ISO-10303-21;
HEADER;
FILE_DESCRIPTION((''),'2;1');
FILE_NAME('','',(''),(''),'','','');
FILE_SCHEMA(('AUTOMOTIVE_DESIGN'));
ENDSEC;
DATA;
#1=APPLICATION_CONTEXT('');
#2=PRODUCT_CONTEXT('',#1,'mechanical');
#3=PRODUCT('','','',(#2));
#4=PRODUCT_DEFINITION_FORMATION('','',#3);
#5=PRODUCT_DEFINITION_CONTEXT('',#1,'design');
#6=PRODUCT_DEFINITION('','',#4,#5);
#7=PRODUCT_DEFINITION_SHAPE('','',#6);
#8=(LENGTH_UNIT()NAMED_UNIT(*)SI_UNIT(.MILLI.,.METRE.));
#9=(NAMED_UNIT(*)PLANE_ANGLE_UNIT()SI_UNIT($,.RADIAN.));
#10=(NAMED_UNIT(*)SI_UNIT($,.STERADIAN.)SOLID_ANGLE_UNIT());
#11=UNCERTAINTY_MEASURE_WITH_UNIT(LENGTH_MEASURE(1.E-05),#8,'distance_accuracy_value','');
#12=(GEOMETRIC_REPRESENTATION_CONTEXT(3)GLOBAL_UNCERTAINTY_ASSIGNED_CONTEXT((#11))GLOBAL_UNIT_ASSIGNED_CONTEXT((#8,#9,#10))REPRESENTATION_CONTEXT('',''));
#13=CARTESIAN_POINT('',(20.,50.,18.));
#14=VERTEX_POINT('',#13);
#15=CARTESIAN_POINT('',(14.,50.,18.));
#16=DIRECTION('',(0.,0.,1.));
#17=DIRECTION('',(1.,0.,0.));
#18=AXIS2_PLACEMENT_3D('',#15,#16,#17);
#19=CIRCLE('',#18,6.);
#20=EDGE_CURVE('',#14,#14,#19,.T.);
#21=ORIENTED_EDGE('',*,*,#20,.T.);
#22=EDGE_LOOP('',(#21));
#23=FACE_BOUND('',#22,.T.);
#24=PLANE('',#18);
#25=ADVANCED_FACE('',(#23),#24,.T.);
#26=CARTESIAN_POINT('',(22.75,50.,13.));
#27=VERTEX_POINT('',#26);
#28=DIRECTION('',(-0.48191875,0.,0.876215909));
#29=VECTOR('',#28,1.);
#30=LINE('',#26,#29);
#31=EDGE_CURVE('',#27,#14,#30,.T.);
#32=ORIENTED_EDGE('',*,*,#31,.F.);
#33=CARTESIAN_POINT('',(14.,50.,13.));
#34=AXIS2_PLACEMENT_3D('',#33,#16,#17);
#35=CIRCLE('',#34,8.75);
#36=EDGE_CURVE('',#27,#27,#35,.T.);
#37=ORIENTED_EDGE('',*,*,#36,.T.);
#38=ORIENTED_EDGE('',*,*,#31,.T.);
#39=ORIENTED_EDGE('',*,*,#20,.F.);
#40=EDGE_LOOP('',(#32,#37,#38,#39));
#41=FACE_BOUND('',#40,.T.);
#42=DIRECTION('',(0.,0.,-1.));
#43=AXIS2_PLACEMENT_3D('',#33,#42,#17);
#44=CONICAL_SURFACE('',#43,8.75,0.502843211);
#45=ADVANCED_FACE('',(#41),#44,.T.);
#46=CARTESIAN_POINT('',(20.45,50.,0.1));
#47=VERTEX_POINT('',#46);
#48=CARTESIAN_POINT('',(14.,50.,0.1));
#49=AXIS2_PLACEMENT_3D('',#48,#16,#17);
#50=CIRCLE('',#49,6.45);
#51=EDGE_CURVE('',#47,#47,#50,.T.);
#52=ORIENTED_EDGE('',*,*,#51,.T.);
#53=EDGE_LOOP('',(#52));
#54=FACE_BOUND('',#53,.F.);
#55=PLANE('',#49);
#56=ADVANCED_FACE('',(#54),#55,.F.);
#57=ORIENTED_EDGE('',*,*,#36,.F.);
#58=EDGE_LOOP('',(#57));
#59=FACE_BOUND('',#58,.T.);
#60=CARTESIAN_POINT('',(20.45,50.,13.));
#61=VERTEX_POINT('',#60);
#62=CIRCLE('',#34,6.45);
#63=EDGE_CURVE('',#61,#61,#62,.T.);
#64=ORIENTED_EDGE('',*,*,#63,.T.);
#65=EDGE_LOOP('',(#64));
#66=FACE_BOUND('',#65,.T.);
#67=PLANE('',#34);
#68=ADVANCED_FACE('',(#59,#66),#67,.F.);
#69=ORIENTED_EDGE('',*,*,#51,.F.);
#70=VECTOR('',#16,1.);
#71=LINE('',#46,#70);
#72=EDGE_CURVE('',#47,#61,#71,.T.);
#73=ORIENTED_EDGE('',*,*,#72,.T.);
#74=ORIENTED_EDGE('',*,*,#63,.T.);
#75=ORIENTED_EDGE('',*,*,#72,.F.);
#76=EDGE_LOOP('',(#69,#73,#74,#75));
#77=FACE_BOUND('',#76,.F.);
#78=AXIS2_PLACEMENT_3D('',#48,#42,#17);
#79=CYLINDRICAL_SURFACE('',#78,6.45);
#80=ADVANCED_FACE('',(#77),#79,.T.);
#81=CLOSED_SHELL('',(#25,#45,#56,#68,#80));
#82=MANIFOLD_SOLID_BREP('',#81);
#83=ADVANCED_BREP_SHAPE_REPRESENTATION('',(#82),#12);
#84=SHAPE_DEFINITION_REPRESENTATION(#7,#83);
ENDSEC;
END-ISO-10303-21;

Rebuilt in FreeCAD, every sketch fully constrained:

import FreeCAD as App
import Part
import Sketcher


def add_polygon(sketch, points):
    """Adds a closed chain of lines whose ends are joined by coincident constraints."""
    first, n = sketch.GeometryCount, len(points)
    for a, b in zip(points, points[1:] + points[:1]):
        sketch.addGeometry(Part.LineSegment(App.Vector(*a, 0), App.Vector(*b, 0)), False)
    for i in range(n):
        sketch.addConstraint(Sketcher.Constraint("Coincident", first + i, 2, first + (i + 1) % n, 1))

doc = App.newDocument("Part")
body = doc.addObject("PartDesign::Body", "Body")

# Sketch on XZ plane
sketch1 = body.newObject("Sketcher::SketchObject", "Sketch")
sketch1.AttachmentSupport = (doc.getObject("XZ_Plane"), [""])
sketch1.MapMode = "FlatFace"
add_polygon(sketch1, [(0, 0), (9, 0), (6, 5), (0, 5)])  # lines 0-3
sketch1.addConstraint(Sketcher.Constraint("Horizontal", 0))
sketch1.addConstraint(Sketcher.Constraint("Horizontal", 2))
sketch1.addConstraint(Sketcher.Constraint("Vertical", 3))
sketch1.addConstraint(Sketcher.Constraint("Coincident", 3, 2, -1, 1))
sketch1.addConstraint(Sketcher.Constraint("DistanceX", 2, 2, 2, 1, 6.0))
sketch1.addConstraint(Sketcher.Constraint("DistanceY", 3, 2, 3, 1, 5.0))
sketch1.addConstraint(Sketcher.Constraint("DistanceX", 0, 1, 0, 2, 8.75))
revolution = body.newObject("PartDesign::Revolution", "Revolution")
revolution.Profile = sketch1
revolution.ReferenceAxis = (sketch1, ["V_Axis"])
revolution.Angle = 360
body2 = doc.addObject("PartDesign::Body", "Body001")

# Sketch on XY plane
sketch2 = body2.newObject("Sketcher::SketchObject", "Sketch001")
sketch2.AttachmentSupport = (doc.getObject("XY_Plane001"), [""])
sketch2.MapMode = "FlatFace"
sketch2.AttachmentOffset = App.Placement(App.Vector(0, 0, -12.9), App.Rotation())
sketch2.addGeometry(Part.Circle(App.Vector(0, 0, 0), App.Vector(0, 0, 1), 6), False)
sketch2.addConstraint(Sketcher.Constraint("Coincident", 0, 3, -1, 1))
sketch2.addConstraint(Sketcher.Constraint("Diameter", 0, 12.9))
pad1 = body2.newObject("PartDesign::Pad", "Pad")
pad1.Profile = sketch2
pad1.Length = 12.9
doc.recompute()

boolean = body2.newObject("PartDesign::Boolean", "Boolean")
boolean.Type = "Fuse"
boolean.addObjects([body])
body3 = doc.addObject("PartDesign::Body", "Body002")
doc.recompute()

body2.Placement = App.Placement(App.Vector(14, 50, 13), App.Rotation(App.Vector(0, 0, 1), 0))
boolean2 = body3.newObject("PartDesign::Boolean", "Boolean001")
boolean2.Type = "Fuse"
boolean2.addObjects([body2])

doc.recompute()
